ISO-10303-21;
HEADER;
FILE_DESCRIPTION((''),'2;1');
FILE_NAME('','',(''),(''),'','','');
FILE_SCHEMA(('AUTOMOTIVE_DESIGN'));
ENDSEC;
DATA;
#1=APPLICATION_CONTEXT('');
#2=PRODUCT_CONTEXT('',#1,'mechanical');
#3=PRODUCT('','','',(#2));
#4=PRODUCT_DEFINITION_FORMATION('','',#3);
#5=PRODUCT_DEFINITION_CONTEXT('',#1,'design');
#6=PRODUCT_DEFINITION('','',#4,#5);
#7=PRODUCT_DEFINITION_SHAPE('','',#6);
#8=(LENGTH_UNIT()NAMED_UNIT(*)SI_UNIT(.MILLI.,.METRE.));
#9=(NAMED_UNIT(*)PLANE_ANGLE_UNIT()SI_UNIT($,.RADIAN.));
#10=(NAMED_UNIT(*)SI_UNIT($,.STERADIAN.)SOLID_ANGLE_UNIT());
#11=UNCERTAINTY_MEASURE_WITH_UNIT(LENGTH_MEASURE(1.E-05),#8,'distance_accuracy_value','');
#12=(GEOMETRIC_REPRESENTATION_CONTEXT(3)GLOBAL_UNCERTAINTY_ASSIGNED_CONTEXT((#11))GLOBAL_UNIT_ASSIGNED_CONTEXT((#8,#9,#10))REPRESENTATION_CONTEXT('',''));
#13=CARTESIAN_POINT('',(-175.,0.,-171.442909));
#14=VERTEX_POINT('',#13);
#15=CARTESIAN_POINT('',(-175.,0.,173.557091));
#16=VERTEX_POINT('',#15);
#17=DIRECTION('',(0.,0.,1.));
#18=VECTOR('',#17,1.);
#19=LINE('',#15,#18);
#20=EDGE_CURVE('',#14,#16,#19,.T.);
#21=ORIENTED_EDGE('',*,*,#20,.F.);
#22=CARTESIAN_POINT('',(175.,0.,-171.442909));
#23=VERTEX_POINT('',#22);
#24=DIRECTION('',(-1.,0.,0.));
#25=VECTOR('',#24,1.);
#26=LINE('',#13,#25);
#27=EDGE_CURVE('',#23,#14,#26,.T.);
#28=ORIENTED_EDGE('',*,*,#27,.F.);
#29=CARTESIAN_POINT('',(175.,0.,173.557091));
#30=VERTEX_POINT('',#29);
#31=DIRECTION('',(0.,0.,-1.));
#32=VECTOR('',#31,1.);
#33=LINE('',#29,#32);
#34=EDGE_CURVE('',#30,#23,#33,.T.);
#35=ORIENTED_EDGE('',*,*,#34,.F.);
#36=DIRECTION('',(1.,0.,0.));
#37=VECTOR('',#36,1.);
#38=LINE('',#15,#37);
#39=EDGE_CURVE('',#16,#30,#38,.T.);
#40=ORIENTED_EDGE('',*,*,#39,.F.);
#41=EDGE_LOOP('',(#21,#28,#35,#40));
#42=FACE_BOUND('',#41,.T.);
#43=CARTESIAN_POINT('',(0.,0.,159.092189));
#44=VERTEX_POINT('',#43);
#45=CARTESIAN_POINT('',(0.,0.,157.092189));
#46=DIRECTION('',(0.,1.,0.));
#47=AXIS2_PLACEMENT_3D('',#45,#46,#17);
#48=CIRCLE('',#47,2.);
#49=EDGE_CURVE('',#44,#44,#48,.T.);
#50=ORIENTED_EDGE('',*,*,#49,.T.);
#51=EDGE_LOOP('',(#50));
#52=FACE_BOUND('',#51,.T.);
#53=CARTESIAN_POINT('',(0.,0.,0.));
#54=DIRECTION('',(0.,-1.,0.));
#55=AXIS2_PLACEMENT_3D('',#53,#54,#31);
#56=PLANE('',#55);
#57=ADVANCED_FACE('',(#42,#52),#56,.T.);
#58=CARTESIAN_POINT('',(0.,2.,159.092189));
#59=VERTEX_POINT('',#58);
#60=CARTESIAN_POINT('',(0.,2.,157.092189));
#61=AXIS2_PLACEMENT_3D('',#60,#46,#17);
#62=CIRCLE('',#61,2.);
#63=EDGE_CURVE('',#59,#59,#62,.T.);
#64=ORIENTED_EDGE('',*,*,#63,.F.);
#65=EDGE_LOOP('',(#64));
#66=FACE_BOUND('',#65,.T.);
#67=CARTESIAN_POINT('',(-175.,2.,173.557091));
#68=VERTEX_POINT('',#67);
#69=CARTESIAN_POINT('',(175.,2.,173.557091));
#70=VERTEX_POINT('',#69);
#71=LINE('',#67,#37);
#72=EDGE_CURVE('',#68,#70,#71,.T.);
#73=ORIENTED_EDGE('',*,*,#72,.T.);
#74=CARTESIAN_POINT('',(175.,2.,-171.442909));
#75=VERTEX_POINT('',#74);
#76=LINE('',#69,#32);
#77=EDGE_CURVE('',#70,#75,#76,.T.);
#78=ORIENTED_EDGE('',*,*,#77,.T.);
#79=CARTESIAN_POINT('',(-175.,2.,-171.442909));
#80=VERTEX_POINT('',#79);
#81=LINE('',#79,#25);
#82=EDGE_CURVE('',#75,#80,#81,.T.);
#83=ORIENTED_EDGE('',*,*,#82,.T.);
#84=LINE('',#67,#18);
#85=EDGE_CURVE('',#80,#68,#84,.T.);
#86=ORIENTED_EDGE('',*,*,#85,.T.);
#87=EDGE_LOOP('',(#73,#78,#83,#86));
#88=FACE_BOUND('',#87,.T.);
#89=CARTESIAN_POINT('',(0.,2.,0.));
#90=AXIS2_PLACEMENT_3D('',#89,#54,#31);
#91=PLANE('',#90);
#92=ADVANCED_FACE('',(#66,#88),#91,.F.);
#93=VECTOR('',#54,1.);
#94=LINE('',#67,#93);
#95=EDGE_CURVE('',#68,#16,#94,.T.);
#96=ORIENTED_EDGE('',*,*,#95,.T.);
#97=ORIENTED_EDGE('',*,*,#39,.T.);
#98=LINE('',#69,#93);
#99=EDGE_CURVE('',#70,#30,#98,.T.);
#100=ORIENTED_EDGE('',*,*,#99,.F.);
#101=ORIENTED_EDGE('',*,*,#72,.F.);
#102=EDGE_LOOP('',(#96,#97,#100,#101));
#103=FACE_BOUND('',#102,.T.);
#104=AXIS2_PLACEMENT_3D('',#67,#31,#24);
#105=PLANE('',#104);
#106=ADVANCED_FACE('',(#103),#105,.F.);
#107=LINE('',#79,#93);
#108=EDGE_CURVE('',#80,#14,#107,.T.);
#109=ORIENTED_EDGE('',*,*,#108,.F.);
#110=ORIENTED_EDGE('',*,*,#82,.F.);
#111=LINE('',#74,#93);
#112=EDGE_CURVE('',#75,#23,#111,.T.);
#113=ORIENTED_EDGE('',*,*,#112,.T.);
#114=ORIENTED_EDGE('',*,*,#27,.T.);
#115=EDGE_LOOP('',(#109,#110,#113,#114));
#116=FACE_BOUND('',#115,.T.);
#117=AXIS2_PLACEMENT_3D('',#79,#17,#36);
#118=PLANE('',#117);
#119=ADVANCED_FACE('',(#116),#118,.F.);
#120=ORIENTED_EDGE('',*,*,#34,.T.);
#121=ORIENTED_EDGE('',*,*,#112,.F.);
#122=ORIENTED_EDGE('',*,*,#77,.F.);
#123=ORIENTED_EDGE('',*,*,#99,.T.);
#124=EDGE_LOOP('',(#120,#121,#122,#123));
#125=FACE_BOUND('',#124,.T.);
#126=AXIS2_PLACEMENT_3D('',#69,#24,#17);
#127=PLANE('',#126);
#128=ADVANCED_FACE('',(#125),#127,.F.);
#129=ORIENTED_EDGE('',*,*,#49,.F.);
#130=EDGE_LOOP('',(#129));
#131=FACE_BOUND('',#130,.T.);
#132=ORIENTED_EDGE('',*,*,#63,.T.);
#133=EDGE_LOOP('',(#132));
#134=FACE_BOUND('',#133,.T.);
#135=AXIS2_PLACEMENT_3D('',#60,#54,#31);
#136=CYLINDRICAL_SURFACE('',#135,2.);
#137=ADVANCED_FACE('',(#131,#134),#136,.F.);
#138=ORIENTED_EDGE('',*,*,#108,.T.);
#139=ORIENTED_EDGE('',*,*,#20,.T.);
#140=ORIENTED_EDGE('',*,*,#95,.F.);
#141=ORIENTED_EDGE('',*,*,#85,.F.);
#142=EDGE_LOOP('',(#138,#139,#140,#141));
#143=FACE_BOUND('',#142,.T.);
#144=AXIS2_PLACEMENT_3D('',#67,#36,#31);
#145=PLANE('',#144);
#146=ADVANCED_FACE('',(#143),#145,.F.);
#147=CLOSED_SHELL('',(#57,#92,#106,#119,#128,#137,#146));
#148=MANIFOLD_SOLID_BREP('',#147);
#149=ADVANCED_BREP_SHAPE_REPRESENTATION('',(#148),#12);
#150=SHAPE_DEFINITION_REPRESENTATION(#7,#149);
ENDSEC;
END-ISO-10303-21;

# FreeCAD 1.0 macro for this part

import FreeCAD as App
import Part
import Sketcher
from FreeCAD import Vector
Q = App.Units.Quantity

doc = App.newDocument("Part")
params = doc.addObject("Spreadsheet::Sheet", "Params")
for row, (alias, value) in enumerate([
    ("sketch1_diameter", "4 mm"),
    ("sketch1_width", "350 mm"),
    ("sketch1_height", "345 mm"),
    ("pad1_length", "2 mm"),
], start=1):
    params.set(f"A{row}", alias)
    params.set(f"B{row}", "=" + value)
    params.setAlias(f"B{row}", alias)

body = doc.addObject("PartDesign::Body", "Body")

# Sketch on XZ plane
sketch1 = body.newObject("Sketcher::SketchObject", "Sketch")
sketch1.AttachmentSupport = (doc.getObject("XZ_Plane"), [""])
sketch1.MapMode = "FlatFace"
sketch1.addGeometry([
    Part.LineSegment(Vector(-175, -171.442909, 0), Vector(-175, 173.557091, 0)),  # 0
    Part.LineSegment(Vector(-175, 173.557091, 0), Vector(175, 173.557091, 0)),  # 1
    Part.LineSegment(Vector(175, 173.557091, 0), Vector(175, -171.442909, 0)),  # 2
    Part.LineSegment(Vector(175, -171.442909, 0), Vector(-175, -171.442909, 0)),  # 3
    Part.Circle(Vector(0, 157.092189, 0), Vector(0, 0, 1), 2),  # 4
], False)
sketch1.addConstraint([
    Sketcher.Constraint("Coincident", 0, 2, 1, 1),
    Sketcher.Constraint("Coincident", 1, 2, 2, 1),
    Sketcher.Constraint("Coincident", 2, 2, 3, 1),
    Sketcher.Constraint("Coincident", 3, 2, 0, 1),
    Sketcher.Constraint("Vertical", 0),
    Sketcher.Constraint("Horizontal", 1),
    Sketcher.Constraint("Vertical", 2),
    Sketcher.Constraint("Horizontal", 3),
    Sketcher.Constraint("PointOnObject", 4, 3, -2),
    Sketcher.Constraint("Diameter", 4, Q("4 mm")),
    Sketcher.Constraint("DistanceX", 1, 1, 1, 2, Q("350 mm")),
    Sketcher.Constraint("DistanceY", 0, 1, 0, 2, Q("345 mm")),
    Sketcher.Constraint("DistanceX", 0, 2, -1, 1, Q("175 mm")),
    Sketcher.Constraint("DistanceY", -1, 1, 4, 3, Q("157.092189 mm")),
    Sketcher.Constraint("DistanceY", -1, 1, 0, 2, Q("173.557091 mm")),
])
sketch1.setExpression("Constraints[9]", "Params.sketch1_diameter")
sketch1.setExpression("Constraints[10]", "Params.sketch1_width")
sketch1.setExpression("Constraints[11]", "Params.sketch1_height")
pad1 = body.newObject("PartDesign::Pad", "Pad")
pad1.Profile = sketch1
pad1.setExpression("Length", "Params.pad1_length")
pad1.Reversed = True

doc.recompute()
